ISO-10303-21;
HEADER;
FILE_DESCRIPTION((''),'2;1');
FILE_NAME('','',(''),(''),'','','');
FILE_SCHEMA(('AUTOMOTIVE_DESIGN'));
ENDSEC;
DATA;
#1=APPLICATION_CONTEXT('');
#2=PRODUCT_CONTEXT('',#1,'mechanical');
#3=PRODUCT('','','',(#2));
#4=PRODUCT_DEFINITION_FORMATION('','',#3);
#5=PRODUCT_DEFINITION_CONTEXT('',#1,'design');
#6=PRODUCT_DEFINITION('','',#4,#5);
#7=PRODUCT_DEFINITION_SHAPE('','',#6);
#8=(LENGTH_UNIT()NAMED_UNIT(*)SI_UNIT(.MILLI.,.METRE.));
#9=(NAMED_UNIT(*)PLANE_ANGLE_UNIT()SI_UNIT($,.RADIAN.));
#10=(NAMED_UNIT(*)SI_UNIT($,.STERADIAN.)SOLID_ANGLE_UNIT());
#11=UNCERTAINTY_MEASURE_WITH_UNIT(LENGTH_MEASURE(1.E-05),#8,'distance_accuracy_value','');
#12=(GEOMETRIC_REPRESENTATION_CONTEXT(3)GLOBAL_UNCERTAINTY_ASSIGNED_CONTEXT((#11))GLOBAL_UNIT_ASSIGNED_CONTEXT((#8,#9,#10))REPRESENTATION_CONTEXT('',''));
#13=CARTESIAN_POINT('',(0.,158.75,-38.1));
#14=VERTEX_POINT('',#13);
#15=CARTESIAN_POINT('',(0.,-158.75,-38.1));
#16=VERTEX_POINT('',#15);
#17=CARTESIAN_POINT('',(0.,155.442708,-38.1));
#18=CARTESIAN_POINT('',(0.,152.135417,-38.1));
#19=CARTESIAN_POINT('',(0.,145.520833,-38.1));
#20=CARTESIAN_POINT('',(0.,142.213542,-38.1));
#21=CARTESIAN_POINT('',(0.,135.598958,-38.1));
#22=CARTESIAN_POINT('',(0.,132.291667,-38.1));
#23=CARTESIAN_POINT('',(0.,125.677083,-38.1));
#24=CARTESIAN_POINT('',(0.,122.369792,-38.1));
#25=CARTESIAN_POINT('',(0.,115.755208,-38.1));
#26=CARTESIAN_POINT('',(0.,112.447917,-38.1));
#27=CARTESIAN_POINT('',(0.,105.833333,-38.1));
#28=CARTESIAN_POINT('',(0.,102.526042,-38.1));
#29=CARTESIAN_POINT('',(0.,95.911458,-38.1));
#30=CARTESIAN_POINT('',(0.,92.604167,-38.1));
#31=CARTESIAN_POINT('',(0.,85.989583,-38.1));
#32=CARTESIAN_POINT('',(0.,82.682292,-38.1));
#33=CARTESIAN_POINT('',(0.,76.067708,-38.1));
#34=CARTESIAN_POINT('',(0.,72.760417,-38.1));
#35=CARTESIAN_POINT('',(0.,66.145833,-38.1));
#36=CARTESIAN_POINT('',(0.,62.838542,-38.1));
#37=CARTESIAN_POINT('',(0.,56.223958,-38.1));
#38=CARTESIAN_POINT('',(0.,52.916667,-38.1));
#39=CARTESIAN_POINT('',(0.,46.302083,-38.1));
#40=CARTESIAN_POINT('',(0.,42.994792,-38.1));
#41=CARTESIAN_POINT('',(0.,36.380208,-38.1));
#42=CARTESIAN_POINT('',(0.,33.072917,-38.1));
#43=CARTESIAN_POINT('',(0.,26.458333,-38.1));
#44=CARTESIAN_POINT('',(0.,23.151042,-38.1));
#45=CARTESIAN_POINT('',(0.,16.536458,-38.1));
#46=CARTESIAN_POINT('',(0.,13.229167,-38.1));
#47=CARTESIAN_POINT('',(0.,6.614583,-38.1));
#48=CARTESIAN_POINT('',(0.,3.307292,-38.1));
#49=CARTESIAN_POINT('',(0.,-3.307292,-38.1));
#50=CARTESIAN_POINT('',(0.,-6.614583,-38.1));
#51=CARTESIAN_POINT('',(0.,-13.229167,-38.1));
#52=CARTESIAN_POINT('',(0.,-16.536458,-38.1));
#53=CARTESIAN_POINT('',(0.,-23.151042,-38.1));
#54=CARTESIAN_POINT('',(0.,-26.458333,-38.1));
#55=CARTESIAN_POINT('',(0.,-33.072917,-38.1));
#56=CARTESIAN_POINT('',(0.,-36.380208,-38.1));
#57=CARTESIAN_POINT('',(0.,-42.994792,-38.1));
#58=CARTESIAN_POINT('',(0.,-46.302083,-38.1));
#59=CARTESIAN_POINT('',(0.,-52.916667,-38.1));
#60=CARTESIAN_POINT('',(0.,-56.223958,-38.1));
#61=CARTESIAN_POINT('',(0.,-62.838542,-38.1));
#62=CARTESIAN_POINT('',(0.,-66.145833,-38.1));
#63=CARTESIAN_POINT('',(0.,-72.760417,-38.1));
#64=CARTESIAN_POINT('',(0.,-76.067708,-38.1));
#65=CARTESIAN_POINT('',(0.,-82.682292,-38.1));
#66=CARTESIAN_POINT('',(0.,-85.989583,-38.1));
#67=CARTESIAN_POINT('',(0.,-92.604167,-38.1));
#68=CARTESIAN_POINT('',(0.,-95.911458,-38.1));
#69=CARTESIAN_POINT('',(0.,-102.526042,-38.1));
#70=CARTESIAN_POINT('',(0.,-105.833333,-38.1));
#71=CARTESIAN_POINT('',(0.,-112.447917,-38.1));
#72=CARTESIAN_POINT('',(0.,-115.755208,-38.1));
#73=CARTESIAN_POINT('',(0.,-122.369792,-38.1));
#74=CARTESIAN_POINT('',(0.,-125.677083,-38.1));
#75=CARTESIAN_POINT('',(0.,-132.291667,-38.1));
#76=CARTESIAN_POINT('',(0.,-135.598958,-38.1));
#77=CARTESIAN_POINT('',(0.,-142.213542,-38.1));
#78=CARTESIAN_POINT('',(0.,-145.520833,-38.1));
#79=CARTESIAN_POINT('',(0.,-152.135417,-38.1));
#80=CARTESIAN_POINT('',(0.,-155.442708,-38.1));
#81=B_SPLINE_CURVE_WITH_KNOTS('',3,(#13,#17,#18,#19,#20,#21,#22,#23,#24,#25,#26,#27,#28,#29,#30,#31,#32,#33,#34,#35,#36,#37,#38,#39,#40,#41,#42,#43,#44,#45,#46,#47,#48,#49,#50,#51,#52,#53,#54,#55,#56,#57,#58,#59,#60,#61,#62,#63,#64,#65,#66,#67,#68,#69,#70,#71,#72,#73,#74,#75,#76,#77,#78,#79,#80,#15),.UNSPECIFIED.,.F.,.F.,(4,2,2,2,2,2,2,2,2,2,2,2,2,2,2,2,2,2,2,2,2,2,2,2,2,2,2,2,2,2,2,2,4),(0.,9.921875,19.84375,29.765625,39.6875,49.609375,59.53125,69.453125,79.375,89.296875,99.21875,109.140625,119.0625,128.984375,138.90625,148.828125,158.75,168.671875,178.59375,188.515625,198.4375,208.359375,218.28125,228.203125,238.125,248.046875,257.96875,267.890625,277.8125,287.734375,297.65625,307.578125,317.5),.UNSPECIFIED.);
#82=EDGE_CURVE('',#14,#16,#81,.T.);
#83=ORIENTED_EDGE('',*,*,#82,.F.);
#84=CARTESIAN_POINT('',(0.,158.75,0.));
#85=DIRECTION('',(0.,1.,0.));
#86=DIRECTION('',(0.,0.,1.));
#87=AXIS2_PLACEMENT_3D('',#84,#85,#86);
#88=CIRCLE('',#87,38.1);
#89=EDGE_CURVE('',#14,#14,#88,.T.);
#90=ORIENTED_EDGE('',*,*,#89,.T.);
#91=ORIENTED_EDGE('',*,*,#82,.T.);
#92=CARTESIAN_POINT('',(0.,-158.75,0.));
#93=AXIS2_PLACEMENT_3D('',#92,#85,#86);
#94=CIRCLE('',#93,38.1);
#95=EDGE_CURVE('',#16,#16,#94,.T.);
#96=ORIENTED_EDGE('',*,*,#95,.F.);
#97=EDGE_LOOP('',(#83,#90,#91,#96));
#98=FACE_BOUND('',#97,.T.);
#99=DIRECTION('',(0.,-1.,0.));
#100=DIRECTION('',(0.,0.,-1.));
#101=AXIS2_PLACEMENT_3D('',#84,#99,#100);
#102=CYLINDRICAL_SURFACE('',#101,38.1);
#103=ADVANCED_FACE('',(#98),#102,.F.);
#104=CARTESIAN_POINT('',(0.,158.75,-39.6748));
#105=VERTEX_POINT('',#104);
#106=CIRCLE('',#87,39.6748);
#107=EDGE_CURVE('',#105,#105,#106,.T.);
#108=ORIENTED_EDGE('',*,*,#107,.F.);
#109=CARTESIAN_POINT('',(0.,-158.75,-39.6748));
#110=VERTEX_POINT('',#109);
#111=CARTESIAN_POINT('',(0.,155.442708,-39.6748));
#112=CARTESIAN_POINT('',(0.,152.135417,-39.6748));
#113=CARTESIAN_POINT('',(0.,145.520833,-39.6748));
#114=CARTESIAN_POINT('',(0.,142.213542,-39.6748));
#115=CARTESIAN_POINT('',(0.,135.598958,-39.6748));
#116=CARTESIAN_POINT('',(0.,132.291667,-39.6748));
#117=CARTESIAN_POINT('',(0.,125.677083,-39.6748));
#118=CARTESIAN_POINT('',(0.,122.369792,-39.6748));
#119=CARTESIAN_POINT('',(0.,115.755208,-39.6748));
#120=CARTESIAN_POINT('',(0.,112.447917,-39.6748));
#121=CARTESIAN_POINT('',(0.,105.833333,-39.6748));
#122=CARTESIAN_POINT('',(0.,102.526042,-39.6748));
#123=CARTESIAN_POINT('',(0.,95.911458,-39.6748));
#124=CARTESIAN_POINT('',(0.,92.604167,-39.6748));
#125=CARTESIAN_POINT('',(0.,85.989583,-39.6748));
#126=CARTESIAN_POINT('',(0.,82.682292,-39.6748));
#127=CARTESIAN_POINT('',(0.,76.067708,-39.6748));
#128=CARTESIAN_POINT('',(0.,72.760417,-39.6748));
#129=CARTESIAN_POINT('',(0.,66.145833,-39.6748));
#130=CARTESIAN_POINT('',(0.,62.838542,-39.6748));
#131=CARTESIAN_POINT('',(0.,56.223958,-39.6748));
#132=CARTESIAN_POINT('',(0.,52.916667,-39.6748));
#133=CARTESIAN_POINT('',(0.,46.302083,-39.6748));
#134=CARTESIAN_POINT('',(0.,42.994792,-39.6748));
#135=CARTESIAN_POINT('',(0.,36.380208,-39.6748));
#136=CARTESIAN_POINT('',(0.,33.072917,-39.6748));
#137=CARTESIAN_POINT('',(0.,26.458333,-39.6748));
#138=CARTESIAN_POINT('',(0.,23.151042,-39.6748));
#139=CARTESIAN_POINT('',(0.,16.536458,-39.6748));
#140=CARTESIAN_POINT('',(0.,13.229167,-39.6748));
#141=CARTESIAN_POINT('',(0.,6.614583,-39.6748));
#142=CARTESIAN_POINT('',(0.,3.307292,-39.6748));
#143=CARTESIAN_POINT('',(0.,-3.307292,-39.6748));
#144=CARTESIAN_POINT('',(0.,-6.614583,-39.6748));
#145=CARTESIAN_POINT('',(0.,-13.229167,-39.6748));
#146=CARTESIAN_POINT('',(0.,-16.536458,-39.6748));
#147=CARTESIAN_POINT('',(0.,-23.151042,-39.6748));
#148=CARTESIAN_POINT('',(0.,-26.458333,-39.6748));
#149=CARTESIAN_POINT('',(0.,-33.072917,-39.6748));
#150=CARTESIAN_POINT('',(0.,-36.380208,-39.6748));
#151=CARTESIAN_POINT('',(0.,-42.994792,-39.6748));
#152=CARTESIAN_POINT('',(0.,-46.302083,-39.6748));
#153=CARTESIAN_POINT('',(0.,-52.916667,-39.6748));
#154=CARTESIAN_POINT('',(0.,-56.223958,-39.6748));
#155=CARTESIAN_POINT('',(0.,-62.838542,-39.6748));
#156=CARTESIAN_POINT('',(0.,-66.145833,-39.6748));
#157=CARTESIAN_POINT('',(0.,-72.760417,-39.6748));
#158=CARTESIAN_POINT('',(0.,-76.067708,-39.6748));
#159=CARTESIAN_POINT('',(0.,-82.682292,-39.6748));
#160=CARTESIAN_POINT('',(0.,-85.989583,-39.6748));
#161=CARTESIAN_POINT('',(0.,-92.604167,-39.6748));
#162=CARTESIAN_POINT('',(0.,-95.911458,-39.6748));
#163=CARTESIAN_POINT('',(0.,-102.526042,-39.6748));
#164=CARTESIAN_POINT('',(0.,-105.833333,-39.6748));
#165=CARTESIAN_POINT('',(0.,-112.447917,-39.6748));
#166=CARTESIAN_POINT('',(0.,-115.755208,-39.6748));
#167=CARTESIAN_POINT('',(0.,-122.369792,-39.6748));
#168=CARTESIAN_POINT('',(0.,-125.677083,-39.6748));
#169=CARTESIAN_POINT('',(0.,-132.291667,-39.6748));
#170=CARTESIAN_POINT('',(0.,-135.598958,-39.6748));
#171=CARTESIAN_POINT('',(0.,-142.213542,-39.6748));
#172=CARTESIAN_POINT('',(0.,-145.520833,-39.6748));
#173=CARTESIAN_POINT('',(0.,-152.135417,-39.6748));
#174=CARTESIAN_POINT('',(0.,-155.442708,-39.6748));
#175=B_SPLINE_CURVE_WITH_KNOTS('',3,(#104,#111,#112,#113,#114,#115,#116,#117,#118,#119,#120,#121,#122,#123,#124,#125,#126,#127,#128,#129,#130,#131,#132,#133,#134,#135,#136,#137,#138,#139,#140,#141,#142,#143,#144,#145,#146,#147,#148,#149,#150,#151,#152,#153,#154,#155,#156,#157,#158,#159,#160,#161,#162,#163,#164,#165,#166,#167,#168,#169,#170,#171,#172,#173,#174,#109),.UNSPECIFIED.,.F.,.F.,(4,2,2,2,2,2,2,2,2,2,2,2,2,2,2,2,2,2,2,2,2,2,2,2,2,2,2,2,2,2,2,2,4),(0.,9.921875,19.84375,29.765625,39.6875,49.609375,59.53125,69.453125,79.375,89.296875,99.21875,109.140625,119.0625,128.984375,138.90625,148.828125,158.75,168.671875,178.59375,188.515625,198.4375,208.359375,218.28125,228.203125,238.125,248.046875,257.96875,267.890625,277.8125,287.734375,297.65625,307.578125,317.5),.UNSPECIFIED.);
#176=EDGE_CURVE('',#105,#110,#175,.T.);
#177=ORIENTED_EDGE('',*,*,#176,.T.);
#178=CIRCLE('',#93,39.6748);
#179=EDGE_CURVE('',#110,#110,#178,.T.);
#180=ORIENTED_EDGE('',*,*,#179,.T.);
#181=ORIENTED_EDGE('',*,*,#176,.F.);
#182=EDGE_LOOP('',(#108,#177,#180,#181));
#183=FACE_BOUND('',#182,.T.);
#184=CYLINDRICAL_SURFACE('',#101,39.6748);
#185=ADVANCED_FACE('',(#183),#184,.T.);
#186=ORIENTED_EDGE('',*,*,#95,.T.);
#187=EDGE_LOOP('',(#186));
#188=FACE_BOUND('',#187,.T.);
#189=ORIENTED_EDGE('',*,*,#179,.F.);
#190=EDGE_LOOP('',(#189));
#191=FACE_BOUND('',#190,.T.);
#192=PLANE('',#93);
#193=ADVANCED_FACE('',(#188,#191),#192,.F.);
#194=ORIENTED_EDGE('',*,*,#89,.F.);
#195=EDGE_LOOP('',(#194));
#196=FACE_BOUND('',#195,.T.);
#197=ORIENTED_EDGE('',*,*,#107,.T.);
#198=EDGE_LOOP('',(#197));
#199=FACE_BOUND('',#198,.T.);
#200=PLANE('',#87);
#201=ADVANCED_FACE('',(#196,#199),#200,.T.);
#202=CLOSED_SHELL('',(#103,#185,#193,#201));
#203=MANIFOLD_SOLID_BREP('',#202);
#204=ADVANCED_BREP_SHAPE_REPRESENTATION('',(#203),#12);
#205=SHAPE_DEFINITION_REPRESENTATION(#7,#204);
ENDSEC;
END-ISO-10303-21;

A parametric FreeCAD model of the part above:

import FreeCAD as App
import Part
import Sketcher

V = App.Vector
Q = App.Units.Quantity

doc = App.newDocument("Part")
body = doc.addObject("PartDesign::Body", "Body")

sketch1 = body.newObject("Sketcher::SketchObject", "Sketch")
sketch1.AttachmentSupport = (doc.getObject("XZ_Plane"), [""])
sketch1.MapMode = "FlatFace"
sketch1.addGeometry([
    Part.Circle(V(0, 0, 0), V(0, 0, 1), 39.6748),
    Part.Circle(V(0, 0, 0), V(0, 0, 1), 38.1),
], False)
sketch1.addConstraint([
    Sketcher.Constraint("Coincident", 0, 3, -1, 1),
    Sketcher.Constraint("Coincident", 1, 3, -1, 1),
    Sketcher.Constraint("Diameter", 1, Q("3 in")),
    Sketcher.Constraint("Diameter", 0, Q("3.124 in")),
])
pad1 = body.newObject("PartDesign::Pad", "Pad")
pad1.Profile = sketch1
pad1.Length = Q("12.5 in")
pad1.Midplane = True

doc.recompute()
